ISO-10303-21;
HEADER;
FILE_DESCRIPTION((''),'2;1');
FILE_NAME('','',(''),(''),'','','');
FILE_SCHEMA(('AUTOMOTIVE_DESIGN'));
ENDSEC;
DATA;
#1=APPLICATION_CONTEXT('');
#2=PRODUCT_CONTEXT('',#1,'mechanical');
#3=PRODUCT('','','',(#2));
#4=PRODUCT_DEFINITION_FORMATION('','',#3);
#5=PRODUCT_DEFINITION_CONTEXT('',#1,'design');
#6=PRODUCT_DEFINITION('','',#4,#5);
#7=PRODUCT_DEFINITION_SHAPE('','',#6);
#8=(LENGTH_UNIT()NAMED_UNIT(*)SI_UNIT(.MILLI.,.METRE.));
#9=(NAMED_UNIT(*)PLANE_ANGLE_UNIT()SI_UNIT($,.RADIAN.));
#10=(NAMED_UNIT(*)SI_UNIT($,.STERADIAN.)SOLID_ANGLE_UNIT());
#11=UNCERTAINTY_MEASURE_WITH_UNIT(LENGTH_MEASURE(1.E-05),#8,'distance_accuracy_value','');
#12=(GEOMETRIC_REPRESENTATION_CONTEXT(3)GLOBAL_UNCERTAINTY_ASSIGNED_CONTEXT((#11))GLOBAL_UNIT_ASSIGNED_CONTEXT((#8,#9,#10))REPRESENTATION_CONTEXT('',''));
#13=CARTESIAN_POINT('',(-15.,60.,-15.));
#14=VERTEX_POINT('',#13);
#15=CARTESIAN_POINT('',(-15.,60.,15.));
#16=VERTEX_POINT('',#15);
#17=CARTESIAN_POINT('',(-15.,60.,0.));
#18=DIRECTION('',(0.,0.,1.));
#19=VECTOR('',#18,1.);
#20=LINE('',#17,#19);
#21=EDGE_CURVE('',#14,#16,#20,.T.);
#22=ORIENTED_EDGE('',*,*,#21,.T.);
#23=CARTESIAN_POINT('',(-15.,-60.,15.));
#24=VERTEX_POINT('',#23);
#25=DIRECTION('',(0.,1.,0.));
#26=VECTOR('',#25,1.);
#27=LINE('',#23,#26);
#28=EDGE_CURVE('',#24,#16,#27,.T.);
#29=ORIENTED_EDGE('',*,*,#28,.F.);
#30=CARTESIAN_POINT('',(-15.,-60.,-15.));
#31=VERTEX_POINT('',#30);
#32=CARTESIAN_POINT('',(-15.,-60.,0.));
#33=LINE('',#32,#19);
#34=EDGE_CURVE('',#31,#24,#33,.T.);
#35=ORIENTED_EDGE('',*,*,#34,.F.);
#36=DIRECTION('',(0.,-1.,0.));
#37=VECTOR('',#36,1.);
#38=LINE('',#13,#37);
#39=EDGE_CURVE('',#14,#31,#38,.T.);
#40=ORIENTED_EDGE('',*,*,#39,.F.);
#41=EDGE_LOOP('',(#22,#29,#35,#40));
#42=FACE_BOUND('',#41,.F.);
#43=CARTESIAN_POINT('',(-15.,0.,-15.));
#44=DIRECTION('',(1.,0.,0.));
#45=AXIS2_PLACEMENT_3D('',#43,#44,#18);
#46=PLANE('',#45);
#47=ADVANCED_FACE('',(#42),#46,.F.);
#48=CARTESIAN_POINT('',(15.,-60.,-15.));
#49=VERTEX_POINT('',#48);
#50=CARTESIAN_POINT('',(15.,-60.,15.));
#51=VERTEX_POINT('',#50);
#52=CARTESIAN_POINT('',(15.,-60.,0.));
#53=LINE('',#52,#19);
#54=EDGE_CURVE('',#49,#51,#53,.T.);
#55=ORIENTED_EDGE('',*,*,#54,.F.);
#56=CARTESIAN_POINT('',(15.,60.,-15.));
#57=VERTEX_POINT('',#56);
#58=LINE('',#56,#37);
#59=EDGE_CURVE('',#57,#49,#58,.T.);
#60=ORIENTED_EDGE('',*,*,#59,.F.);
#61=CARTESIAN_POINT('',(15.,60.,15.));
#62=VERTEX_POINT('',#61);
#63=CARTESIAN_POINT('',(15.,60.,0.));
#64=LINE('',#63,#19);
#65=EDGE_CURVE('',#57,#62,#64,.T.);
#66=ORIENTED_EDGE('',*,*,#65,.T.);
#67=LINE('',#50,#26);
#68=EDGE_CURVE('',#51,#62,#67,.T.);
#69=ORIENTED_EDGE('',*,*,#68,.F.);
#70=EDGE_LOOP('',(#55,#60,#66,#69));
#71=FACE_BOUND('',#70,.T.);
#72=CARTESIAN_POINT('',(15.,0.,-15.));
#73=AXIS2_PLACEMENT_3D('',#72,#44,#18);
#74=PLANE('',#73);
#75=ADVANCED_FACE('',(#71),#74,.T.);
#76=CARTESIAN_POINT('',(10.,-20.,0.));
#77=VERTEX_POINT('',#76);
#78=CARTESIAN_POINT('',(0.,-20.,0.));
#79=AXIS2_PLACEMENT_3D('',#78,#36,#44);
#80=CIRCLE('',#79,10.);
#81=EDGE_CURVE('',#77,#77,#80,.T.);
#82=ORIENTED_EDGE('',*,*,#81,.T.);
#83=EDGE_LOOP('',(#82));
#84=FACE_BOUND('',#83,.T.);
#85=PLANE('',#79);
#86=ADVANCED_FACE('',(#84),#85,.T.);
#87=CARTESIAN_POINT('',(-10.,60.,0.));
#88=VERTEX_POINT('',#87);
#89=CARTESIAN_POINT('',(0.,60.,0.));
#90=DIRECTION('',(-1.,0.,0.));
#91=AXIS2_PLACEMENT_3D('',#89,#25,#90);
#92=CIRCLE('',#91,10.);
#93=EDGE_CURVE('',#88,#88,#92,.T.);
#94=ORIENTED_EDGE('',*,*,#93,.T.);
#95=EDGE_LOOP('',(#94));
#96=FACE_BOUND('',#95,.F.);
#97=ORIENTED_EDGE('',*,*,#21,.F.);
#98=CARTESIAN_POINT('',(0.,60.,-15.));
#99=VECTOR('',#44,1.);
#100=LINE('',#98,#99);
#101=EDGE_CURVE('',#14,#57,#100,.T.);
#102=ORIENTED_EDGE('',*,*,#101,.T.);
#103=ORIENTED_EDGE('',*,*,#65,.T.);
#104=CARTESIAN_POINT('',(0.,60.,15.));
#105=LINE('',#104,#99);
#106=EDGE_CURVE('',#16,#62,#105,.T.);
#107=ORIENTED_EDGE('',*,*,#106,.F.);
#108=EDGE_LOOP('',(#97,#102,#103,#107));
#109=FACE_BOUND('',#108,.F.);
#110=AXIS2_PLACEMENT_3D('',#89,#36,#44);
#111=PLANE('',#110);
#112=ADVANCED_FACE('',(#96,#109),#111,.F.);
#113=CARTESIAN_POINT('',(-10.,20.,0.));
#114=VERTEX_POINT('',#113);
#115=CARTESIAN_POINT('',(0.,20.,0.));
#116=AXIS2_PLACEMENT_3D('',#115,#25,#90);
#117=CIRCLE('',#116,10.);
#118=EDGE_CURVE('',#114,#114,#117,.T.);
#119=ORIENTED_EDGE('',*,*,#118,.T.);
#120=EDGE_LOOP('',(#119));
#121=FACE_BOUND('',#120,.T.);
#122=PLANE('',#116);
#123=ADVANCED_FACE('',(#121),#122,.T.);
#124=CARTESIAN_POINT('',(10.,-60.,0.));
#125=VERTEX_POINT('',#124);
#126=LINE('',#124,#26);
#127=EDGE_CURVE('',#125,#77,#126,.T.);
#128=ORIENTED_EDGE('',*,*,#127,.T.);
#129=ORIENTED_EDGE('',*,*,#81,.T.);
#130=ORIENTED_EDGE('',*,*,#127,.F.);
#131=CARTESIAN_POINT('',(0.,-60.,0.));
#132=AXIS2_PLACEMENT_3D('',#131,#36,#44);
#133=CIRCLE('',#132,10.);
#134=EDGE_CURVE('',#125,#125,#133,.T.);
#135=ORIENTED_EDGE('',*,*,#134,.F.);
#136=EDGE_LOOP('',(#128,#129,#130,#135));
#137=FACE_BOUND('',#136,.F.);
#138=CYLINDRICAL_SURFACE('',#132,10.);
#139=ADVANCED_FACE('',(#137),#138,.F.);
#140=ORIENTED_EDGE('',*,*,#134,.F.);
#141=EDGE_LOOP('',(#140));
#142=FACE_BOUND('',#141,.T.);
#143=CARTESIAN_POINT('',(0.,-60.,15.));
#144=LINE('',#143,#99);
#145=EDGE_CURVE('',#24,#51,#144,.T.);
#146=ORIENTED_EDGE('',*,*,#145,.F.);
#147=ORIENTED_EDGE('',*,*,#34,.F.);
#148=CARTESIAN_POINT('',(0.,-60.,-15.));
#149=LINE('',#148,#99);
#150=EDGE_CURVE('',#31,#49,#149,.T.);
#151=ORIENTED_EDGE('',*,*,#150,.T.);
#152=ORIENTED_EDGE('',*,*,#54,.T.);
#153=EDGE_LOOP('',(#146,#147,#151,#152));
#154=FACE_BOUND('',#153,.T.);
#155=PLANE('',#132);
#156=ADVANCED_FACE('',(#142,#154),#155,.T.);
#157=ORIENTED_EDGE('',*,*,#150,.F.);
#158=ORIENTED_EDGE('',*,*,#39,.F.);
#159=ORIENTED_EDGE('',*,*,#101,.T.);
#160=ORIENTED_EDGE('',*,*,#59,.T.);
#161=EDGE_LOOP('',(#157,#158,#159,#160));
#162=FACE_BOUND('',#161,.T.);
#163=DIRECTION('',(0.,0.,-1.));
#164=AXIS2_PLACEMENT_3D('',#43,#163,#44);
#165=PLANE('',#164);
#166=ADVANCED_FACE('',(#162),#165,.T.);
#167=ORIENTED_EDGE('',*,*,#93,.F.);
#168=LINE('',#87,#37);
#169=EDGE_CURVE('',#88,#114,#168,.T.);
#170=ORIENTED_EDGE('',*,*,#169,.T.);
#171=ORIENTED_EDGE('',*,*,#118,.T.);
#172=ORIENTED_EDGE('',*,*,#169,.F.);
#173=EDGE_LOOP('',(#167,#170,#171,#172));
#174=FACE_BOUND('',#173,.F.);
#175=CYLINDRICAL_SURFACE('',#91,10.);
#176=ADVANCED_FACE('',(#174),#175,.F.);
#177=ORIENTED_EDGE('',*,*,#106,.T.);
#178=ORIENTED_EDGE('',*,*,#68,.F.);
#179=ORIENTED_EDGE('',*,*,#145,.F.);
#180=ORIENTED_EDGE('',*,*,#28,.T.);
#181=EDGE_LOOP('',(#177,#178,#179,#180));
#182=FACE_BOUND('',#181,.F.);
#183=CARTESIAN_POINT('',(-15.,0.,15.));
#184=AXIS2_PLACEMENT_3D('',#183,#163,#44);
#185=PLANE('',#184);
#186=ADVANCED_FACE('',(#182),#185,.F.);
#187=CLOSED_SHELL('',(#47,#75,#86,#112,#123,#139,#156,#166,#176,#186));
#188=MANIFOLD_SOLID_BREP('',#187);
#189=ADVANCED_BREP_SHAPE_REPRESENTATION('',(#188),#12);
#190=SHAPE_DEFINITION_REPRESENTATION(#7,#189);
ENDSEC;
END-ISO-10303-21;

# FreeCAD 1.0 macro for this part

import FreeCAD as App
import Part
import Sketcher
from FreeCAD import Vector


def add_polygon(sketch, points):
    """Adds a closed chain of lines whose ends are joined by coincident constraints."""
    first, n = sketch.GeometryCount, len(points)
    for a, b in zip(points, points[1:] + points[:1]):
        sketch.addGeometry(Part.LineSegment(App.Vector(*a, 0), App.Vector(*b, 0)), False)
    for i in range(n):
        sketch.addConstraint(Sketcher.Constraint("Coincident", first + i, 2, first + (i + 1) % n, 1))

doc = App.newDocument("Part")
body = doc.addObject("PartDesign::Body", "Body")

# Sketch on XZ plane
sketch1 = body.newObject("Sketcher::SketchObject", "Sketch")
sketch1.AttachmentSupport = (doc.getObject("XZ_Plane"), [""])
sketch1.MapMode = "FlatFace"
add_polygon(sketch1, [(-15, 15), (-15, -15), (15, -15), (15, 15)])  # lines 0-3
sketch1.addConstraint(Sketcher.Constraint("Vertical", 0))
sketch1.addConstraint(Sketcher.Constraint("Horizontal", 1))
sketch1.addConstraint(Sketcher.Constraint("Vertical", 2))
sketch1.addConstraint(Sketcher.Constraint("Horizontal", 3))
sketch1.addConstraint(Sketcher.Constraint("Symmetric", 0, 2, 2, 2, -1, 1))
sketch1.addConstraint(Sketcher.Constraint("Equal", 3, 0))
sketch1.addConstraint(Sketcher.Constraint("DistanceX", 1, 1, 1, 2, 30.0))
pad1 = body.newObject("PartDesign::Pad", "Pad")
pad1.Profile = sketch1
pad1.Length = 120
pad1.Midplane = True

# Sketch on XZ plane
sketch2 = body.newObject("Sketcher::SketchObject", "Sketch001")
sketch2.AttachmentSupport = (doc.getObject("XZ_Plane"), [""])
sketch2.MapMode = "FlatFace"
sketch2.AttachmentOffset = App.Placement(Vector(0, 0, -60), App.Rotation())
sketch2.addGeometry(Part.Circle(Vector(0, 0, 0), Vector(0, 0, 1), 10), False)
sketch2.addConstraint(Sketcher.Constraint("Coincident", 0, 3, -1, 1))
sketch2.addConstraint(Sketcher.Constraint("Diameter", 0, 20.0))
pocket1 = body.newObject("PartDesign::Pocket", "Pocket")
pocket1.Profile = sketch2
pocket1.Length = 40
pocket1.Reversed = True

# Sketch on XZ plane
sketch3 = body.newObject("Sketcher::SketchObject", "Sketch002")
sketch3.AttachmentSupport = (doc.getObject("XZ_Plane"), [""])
sketch3.MapMode = "FlatFace"
sketch3.AttachmentOffset = App.Placement(Vector(0, 0, 60), App.Rotation())
sketch3.addGeometry(Part.Circle(Vector(0, 0, 0), Vector(0, 0, 1), 10), False)
sketch3.addConstraint(Sketcher.Constraint("Coincident", 0, 3, -1, 1))
sketch3.addConstraint(Sketcher.Constraint("Diameter", 0, 20.0))
pocket2 = body.newObject("PartDesign::Pocket", "Pocket001")
pocket2.Profile = sketch3
pocket2.Length = 40

doc.recompute()
